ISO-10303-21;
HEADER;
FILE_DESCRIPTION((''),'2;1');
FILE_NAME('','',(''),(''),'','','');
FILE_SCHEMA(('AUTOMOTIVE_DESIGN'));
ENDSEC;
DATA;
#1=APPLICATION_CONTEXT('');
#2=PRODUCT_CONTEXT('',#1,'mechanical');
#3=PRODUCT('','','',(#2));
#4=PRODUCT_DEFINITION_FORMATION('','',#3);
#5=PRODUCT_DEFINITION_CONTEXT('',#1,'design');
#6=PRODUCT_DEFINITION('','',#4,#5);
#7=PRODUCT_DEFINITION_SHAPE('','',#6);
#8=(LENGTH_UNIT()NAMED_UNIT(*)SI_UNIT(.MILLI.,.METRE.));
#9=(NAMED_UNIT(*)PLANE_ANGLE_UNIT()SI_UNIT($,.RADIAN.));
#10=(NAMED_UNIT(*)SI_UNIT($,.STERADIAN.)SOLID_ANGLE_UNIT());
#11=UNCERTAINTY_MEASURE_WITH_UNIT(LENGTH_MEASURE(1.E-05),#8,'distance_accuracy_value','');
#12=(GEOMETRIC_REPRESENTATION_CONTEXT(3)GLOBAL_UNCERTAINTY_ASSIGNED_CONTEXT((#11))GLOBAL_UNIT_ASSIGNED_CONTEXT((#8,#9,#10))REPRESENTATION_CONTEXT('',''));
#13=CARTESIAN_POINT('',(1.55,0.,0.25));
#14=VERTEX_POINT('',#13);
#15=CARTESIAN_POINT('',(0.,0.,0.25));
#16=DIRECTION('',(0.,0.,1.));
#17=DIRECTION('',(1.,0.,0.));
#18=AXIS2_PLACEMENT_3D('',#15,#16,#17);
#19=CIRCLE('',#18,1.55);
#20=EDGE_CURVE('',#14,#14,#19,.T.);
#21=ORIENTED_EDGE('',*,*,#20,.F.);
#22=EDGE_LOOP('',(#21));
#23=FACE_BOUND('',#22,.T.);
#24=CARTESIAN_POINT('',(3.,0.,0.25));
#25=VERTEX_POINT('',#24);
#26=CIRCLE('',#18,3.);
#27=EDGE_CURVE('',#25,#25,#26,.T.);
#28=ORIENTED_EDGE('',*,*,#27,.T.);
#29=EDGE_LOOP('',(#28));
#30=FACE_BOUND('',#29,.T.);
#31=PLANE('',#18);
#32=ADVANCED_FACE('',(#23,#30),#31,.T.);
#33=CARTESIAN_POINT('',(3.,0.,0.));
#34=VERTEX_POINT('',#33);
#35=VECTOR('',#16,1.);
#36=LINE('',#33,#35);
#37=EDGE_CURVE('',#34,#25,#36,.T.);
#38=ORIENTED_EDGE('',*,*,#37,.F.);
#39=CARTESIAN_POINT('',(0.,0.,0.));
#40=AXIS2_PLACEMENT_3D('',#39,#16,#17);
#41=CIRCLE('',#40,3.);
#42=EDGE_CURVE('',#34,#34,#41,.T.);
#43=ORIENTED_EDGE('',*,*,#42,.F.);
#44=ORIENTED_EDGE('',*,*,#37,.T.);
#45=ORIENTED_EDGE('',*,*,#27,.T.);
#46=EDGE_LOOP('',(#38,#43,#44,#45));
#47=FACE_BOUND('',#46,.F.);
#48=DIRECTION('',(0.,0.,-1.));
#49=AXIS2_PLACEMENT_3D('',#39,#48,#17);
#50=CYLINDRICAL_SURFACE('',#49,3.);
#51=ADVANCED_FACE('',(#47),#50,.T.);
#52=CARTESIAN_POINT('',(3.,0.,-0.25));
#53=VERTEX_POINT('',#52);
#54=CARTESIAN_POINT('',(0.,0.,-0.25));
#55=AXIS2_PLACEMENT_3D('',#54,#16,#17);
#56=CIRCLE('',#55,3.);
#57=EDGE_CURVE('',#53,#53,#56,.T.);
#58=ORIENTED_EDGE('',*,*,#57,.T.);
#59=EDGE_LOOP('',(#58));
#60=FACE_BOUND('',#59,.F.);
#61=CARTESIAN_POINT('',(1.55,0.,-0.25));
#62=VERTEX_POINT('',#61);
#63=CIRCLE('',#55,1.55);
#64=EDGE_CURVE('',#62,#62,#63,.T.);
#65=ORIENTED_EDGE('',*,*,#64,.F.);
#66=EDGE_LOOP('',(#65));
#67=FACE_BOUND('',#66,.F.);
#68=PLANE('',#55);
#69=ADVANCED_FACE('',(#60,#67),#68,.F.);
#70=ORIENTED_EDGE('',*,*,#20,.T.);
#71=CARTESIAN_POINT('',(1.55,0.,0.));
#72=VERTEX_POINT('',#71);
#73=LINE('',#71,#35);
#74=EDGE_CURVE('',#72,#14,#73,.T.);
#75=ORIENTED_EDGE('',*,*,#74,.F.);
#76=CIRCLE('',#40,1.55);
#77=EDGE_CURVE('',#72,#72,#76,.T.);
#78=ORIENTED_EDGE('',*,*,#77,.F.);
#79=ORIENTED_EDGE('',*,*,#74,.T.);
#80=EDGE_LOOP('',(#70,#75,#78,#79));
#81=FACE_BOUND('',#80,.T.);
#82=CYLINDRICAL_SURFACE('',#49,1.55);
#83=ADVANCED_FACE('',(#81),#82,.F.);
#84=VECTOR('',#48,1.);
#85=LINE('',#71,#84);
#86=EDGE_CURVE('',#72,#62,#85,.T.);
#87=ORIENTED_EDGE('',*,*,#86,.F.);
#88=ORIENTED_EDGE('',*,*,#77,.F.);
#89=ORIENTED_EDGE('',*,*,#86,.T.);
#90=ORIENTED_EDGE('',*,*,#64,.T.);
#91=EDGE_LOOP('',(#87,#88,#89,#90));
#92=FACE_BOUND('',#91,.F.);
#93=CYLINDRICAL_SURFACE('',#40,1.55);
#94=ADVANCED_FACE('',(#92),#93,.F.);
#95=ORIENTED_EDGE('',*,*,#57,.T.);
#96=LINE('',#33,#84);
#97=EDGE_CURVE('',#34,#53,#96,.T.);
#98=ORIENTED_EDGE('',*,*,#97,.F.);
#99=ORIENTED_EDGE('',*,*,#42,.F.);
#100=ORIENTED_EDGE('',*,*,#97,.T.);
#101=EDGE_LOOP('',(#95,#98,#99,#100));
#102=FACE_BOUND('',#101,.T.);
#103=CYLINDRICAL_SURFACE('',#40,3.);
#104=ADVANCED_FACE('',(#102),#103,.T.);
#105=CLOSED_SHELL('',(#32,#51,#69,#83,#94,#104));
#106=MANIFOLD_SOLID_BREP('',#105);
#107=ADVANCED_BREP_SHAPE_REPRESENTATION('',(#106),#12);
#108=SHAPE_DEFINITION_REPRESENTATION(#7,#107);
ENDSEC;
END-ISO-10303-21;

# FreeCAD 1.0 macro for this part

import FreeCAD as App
import Part
import Sketcher

V = App.Vector
Q = App.Units.Quantity

doc = App.newDocument("Part")
params = doc.addObject("Spreadsheet::Sheet", "Params")
for row, (alias, value) in enumerate([
    ("sketch1_diameter", "6 mm"),
    ("sketch1_diameter2", "3.1 mm"),
    ("pad1_length", "0.5 mm"),
], start=1):
    params.set(f"A{row}", alias)
    params.set(f"B{row}", "=" + value)
    params.setAlias(f"B{row}", alias)

body = doc.addObject("PartDesign::Body", "Body")

# Sketch on XY plane
sketch1 = body.newObject("Sketcher::SketchObject", "Sketch")
sketch1.AttachmentSupport = (doc.getObject("XY_Plane"), [""])
sketch1.MapMode = "FlatFace"
sketch1.addGeometry([
    Part.Circle(V(0, 0, 0), V(0, 0, 1), 3),
    Part.Circle(V(0, 0, 0), V(0, 0, 1), 1.6),
], False)
sketch1.addConstraint([
    Sketcher.Constraint("Coincident", 0, 3, -1, 1),
    Sketcher.Constraint("Coincident", 1, 3, -1, 1),
    Sketcher.Constraint("Diameter", 0, Q("6 mm")),
    Sketcher.Constraint("Diameter", 1, Q("3.1 mm")),
])
sketch1.setExpression("Constraints[2]", "Params.sketch1_diameter")
sketch1.setExpression("Constraints[3]", "Params.sketch1_diameter2")
pad1 = body.newObject("PartDesign::Pad", "Pad")
pad1.Profile = sketch1
pad1.setExpression("Length", "Params.pad1_length")
pad1.Midplane = True

doc.recompute()
